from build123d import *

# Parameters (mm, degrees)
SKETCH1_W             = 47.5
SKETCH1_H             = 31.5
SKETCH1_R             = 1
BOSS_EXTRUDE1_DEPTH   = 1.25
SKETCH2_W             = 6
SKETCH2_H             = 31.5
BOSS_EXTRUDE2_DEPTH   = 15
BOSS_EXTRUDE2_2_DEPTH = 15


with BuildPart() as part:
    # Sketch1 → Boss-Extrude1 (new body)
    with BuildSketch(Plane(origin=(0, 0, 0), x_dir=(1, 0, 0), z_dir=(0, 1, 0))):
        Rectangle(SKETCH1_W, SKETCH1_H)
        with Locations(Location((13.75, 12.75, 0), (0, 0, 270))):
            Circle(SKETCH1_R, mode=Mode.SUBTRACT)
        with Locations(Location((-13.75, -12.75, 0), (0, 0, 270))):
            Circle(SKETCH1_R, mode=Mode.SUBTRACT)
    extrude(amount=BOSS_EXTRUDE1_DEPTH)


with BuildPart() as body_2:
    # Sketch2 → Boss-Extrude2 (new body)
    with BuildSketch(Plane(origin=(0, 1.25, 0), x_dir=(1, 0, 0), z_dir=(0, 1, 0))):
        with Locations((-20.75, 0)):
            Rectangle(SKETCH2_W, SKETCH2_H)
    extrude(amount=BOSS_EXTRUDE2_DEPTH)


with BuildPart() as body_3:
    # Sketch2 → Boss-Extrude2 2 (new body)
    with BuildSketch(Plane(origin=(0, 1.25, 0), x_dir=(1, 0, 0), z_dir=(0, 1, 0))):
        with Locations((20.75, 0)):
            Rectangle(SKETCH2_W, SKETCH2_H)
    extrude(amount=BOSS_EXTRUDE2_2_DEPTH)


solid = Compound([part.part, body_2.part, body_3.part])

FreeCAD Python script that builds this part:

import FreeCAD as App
import Part
import Sketcher

V = App.Vector

doc = App.newDocument("Part")
body = doc.addObject("PartDesign::Body", "Body")

# Sketch on XZ plane
sketch1 = body.newObject("Sketcher::SketchObject", "Sketch")
sketch1.AttachmentSupport = (doc.getObject("XZ_Plane"), [""])
sketch1.MapMode = "FlatFace"
sketch1.addGeometry([
    Part.LineSegment(V(-23.8, -15.8, 0), V(-23.8, 15.8, 0)),  # 0
    Part.LineSegment(V(-23.8, 15.8, 0), V(23.8, 15.8, 0)),  # 1
    Part.LineSegment(V(23.8, 15.8, 0), V(23.8, -15.8, 0)),  # 2
    Part.LineSegment(V(23.8, -15.8, 0), V(-23.8, -15.8, 0)),  # 3
    Part.Circle(V(-13.8, 12.8, 0), V(0, 0, 1), 1),  # 4
    Part.Circle(V(13.8, -12.8, 0), V(0, 0, 1), 1),  # 5
], False)
sketch1.addConstraint([
    Sketcher.Constraint("Coincident", 0, 2, 1, 1),
    Sketcher.Constraint("Coincident", 1, 2, 2, 1),
    Sketcher.Constraint("Coincident", 2, 2, 3, 1),
    Sketcher.Constraint("Coincident", 3, 2, 0, 1),
    Sketcher.Constraint("Vertical", 0),
    Sketcher.Constraint("Horizontal", 1),
    Sketcher.Constraint("Vertical", 2),
    Sketcher.Constraint("Horizontal", 3),
    Sketcher.Constraint("Equal", 4, 5),
    Sketcher.Constraint("Symmetric", 4, 3, 5, 3, -1, 1),
    Sketcher.Constraint("Symmetric", 0, 2, 2, 2, -1, 1),
    Sketcher.Constraint("Diameter", 4, 2.0),
    Sketcher.Constraint("DistanceX", 1, 1, 1, 2, 47.5),
    Sketcher.Constraint("DistanceY", 0, 1, 0, 2, 31.5),
    Sketcher.Constraint("DistanceX", 0, 2, 4, 3, 10.0),
    Sketcher.Constraint("DistanceY", 4, 3, 0, 2, 3.0),
])
pad1 = body.newObject("PartDesign::Pad", "Pad")
pad1.Profile = sketch1
pad1.Length = 1.25
pad1.Reversed = True
body2 = doc.addObject("PartDesign::Body", "Body001")

# Sketch on XZ plane
sketch2 = body2.newObject("Sketcher::SketchObject", "Sketch001")
sketch2.AttachmentSupport = (doc.getObject("XZ_Plane001"), [""])
sketch2.MapMode = "FlatFace"
sketch2.AttachmentOffset = App.Placement(V(0, 0, -1.25), App.Rotation())
sketch2.addGeometry([
    Part.LineSegment(V(-24, -16, 0), V(-24, 16, 0)),
    Part.LineSegment(V(-24, 16, 0), V(-18, 16, 0)),
    Part.LineSegment(V(-18, 16, 0), V(-18, -16, 0)),
    Part.LineSegment(V(-18, -16, 0), V(-24, -16, 0)),
], False)
sketch2.addConstraint([
    Sketcher.Constraint("Coincident", 0, 2, 1, 1),
    Sketcher.Constraint("Coincident", 1, 2, 2, 1),
    Sketcher.Constraint("Coincident", 2, 2, 3, 1),
    Sketcher.Constraint("Coincident", 3, 2, 0, 1),
    Sketcher.Constraint("Vertical", 0),
    Sketcher.Constraint("Horizontal", 1),
    Sketcher.Constraint("Vertical", 2),
    Sketcher.Constraint("Horizontal", 3),
    Sketcher.Constraint("DistanceX", 1, 1, 1, 2, 6.0),
    Sketcher.Constraint("DistanceY", 0, 1, 0, 2, 31.5),
    Sketcher.Constraint("DistanceX", 0, 2, -1, 1, 23.75),
    Sketcher.Constraint("DistanceY", -1, 1, 0, 2, 15.75),
])
pad2 = body2.newObject("PartDesign::Pad", "Pad001")
pad2.Profile = sketch2
pad2.Length = 15
pad2.Reversed = True
body3 = doc.addObject("PartDesign::Body", "Body002")

# Sketch on XZ plane
sketch3 = body3.newObject("Sketcher::SketchObject", "Sketch002")
sketch3.AttachmentSupport = (doc.getObject("XZ_Plane002"), [""])
sketch3.MapMode = "FlatFace"
sketch3.AttachmentOffset = App.Placement(V(0, 0, -1.25), App.Rotation())
sketch3.addGeometry([
    Part.LineSegment(V(18, -16, 0), V(18, 16, 0)),
    Part.LineSegment(V(18, 16, 0), V(24, 16, 0)),
    Part.LineSegment(V(24, 16, 0), V(24, -16, 0)),
    Part.LineSegment(V(24, -16, 0), V(18, -16, 0)),
], False)
sketch3.addConstraint([
    Sketcher.Constraint("Coincident", 0, 2, 1, 1),
    Sketcher.Constraint("Coincident", 1, 2, 2, 1),
    Sketcher.Constraint("Coincident", 2, 2, 3, 1),
    Sketcher.Constraint("Coincident", 3, 2, 0, 1),
    Sketcher.Constraint("Vertical", 0),
    Sketcher.Constraint("Horizontal", 1),
    Sketcher.Constraint("Vertical", 2),
    Sketcher.Constraint("Horizontal", 3),
    Sketcher.Constraint("DistanceX", 1, 1, 1, 2, 6.0),
    Sketcher.Constraint("DistanceY", 0, 1, 0, 2, 31.5),
    Sketcher.Constraint("DistanceX", -1, 1, 0, 2, 17.75),
    Sketcher.Constraint("DistanceY", -1, 1, 0, 2, 15.75),
])
pad3 = body3.newObject("PartDesign::Pad", "Pad002")
pad3.Profile = sketch3
pad3.Length = 15
pad3.Reversed = True

doc.recompute()
